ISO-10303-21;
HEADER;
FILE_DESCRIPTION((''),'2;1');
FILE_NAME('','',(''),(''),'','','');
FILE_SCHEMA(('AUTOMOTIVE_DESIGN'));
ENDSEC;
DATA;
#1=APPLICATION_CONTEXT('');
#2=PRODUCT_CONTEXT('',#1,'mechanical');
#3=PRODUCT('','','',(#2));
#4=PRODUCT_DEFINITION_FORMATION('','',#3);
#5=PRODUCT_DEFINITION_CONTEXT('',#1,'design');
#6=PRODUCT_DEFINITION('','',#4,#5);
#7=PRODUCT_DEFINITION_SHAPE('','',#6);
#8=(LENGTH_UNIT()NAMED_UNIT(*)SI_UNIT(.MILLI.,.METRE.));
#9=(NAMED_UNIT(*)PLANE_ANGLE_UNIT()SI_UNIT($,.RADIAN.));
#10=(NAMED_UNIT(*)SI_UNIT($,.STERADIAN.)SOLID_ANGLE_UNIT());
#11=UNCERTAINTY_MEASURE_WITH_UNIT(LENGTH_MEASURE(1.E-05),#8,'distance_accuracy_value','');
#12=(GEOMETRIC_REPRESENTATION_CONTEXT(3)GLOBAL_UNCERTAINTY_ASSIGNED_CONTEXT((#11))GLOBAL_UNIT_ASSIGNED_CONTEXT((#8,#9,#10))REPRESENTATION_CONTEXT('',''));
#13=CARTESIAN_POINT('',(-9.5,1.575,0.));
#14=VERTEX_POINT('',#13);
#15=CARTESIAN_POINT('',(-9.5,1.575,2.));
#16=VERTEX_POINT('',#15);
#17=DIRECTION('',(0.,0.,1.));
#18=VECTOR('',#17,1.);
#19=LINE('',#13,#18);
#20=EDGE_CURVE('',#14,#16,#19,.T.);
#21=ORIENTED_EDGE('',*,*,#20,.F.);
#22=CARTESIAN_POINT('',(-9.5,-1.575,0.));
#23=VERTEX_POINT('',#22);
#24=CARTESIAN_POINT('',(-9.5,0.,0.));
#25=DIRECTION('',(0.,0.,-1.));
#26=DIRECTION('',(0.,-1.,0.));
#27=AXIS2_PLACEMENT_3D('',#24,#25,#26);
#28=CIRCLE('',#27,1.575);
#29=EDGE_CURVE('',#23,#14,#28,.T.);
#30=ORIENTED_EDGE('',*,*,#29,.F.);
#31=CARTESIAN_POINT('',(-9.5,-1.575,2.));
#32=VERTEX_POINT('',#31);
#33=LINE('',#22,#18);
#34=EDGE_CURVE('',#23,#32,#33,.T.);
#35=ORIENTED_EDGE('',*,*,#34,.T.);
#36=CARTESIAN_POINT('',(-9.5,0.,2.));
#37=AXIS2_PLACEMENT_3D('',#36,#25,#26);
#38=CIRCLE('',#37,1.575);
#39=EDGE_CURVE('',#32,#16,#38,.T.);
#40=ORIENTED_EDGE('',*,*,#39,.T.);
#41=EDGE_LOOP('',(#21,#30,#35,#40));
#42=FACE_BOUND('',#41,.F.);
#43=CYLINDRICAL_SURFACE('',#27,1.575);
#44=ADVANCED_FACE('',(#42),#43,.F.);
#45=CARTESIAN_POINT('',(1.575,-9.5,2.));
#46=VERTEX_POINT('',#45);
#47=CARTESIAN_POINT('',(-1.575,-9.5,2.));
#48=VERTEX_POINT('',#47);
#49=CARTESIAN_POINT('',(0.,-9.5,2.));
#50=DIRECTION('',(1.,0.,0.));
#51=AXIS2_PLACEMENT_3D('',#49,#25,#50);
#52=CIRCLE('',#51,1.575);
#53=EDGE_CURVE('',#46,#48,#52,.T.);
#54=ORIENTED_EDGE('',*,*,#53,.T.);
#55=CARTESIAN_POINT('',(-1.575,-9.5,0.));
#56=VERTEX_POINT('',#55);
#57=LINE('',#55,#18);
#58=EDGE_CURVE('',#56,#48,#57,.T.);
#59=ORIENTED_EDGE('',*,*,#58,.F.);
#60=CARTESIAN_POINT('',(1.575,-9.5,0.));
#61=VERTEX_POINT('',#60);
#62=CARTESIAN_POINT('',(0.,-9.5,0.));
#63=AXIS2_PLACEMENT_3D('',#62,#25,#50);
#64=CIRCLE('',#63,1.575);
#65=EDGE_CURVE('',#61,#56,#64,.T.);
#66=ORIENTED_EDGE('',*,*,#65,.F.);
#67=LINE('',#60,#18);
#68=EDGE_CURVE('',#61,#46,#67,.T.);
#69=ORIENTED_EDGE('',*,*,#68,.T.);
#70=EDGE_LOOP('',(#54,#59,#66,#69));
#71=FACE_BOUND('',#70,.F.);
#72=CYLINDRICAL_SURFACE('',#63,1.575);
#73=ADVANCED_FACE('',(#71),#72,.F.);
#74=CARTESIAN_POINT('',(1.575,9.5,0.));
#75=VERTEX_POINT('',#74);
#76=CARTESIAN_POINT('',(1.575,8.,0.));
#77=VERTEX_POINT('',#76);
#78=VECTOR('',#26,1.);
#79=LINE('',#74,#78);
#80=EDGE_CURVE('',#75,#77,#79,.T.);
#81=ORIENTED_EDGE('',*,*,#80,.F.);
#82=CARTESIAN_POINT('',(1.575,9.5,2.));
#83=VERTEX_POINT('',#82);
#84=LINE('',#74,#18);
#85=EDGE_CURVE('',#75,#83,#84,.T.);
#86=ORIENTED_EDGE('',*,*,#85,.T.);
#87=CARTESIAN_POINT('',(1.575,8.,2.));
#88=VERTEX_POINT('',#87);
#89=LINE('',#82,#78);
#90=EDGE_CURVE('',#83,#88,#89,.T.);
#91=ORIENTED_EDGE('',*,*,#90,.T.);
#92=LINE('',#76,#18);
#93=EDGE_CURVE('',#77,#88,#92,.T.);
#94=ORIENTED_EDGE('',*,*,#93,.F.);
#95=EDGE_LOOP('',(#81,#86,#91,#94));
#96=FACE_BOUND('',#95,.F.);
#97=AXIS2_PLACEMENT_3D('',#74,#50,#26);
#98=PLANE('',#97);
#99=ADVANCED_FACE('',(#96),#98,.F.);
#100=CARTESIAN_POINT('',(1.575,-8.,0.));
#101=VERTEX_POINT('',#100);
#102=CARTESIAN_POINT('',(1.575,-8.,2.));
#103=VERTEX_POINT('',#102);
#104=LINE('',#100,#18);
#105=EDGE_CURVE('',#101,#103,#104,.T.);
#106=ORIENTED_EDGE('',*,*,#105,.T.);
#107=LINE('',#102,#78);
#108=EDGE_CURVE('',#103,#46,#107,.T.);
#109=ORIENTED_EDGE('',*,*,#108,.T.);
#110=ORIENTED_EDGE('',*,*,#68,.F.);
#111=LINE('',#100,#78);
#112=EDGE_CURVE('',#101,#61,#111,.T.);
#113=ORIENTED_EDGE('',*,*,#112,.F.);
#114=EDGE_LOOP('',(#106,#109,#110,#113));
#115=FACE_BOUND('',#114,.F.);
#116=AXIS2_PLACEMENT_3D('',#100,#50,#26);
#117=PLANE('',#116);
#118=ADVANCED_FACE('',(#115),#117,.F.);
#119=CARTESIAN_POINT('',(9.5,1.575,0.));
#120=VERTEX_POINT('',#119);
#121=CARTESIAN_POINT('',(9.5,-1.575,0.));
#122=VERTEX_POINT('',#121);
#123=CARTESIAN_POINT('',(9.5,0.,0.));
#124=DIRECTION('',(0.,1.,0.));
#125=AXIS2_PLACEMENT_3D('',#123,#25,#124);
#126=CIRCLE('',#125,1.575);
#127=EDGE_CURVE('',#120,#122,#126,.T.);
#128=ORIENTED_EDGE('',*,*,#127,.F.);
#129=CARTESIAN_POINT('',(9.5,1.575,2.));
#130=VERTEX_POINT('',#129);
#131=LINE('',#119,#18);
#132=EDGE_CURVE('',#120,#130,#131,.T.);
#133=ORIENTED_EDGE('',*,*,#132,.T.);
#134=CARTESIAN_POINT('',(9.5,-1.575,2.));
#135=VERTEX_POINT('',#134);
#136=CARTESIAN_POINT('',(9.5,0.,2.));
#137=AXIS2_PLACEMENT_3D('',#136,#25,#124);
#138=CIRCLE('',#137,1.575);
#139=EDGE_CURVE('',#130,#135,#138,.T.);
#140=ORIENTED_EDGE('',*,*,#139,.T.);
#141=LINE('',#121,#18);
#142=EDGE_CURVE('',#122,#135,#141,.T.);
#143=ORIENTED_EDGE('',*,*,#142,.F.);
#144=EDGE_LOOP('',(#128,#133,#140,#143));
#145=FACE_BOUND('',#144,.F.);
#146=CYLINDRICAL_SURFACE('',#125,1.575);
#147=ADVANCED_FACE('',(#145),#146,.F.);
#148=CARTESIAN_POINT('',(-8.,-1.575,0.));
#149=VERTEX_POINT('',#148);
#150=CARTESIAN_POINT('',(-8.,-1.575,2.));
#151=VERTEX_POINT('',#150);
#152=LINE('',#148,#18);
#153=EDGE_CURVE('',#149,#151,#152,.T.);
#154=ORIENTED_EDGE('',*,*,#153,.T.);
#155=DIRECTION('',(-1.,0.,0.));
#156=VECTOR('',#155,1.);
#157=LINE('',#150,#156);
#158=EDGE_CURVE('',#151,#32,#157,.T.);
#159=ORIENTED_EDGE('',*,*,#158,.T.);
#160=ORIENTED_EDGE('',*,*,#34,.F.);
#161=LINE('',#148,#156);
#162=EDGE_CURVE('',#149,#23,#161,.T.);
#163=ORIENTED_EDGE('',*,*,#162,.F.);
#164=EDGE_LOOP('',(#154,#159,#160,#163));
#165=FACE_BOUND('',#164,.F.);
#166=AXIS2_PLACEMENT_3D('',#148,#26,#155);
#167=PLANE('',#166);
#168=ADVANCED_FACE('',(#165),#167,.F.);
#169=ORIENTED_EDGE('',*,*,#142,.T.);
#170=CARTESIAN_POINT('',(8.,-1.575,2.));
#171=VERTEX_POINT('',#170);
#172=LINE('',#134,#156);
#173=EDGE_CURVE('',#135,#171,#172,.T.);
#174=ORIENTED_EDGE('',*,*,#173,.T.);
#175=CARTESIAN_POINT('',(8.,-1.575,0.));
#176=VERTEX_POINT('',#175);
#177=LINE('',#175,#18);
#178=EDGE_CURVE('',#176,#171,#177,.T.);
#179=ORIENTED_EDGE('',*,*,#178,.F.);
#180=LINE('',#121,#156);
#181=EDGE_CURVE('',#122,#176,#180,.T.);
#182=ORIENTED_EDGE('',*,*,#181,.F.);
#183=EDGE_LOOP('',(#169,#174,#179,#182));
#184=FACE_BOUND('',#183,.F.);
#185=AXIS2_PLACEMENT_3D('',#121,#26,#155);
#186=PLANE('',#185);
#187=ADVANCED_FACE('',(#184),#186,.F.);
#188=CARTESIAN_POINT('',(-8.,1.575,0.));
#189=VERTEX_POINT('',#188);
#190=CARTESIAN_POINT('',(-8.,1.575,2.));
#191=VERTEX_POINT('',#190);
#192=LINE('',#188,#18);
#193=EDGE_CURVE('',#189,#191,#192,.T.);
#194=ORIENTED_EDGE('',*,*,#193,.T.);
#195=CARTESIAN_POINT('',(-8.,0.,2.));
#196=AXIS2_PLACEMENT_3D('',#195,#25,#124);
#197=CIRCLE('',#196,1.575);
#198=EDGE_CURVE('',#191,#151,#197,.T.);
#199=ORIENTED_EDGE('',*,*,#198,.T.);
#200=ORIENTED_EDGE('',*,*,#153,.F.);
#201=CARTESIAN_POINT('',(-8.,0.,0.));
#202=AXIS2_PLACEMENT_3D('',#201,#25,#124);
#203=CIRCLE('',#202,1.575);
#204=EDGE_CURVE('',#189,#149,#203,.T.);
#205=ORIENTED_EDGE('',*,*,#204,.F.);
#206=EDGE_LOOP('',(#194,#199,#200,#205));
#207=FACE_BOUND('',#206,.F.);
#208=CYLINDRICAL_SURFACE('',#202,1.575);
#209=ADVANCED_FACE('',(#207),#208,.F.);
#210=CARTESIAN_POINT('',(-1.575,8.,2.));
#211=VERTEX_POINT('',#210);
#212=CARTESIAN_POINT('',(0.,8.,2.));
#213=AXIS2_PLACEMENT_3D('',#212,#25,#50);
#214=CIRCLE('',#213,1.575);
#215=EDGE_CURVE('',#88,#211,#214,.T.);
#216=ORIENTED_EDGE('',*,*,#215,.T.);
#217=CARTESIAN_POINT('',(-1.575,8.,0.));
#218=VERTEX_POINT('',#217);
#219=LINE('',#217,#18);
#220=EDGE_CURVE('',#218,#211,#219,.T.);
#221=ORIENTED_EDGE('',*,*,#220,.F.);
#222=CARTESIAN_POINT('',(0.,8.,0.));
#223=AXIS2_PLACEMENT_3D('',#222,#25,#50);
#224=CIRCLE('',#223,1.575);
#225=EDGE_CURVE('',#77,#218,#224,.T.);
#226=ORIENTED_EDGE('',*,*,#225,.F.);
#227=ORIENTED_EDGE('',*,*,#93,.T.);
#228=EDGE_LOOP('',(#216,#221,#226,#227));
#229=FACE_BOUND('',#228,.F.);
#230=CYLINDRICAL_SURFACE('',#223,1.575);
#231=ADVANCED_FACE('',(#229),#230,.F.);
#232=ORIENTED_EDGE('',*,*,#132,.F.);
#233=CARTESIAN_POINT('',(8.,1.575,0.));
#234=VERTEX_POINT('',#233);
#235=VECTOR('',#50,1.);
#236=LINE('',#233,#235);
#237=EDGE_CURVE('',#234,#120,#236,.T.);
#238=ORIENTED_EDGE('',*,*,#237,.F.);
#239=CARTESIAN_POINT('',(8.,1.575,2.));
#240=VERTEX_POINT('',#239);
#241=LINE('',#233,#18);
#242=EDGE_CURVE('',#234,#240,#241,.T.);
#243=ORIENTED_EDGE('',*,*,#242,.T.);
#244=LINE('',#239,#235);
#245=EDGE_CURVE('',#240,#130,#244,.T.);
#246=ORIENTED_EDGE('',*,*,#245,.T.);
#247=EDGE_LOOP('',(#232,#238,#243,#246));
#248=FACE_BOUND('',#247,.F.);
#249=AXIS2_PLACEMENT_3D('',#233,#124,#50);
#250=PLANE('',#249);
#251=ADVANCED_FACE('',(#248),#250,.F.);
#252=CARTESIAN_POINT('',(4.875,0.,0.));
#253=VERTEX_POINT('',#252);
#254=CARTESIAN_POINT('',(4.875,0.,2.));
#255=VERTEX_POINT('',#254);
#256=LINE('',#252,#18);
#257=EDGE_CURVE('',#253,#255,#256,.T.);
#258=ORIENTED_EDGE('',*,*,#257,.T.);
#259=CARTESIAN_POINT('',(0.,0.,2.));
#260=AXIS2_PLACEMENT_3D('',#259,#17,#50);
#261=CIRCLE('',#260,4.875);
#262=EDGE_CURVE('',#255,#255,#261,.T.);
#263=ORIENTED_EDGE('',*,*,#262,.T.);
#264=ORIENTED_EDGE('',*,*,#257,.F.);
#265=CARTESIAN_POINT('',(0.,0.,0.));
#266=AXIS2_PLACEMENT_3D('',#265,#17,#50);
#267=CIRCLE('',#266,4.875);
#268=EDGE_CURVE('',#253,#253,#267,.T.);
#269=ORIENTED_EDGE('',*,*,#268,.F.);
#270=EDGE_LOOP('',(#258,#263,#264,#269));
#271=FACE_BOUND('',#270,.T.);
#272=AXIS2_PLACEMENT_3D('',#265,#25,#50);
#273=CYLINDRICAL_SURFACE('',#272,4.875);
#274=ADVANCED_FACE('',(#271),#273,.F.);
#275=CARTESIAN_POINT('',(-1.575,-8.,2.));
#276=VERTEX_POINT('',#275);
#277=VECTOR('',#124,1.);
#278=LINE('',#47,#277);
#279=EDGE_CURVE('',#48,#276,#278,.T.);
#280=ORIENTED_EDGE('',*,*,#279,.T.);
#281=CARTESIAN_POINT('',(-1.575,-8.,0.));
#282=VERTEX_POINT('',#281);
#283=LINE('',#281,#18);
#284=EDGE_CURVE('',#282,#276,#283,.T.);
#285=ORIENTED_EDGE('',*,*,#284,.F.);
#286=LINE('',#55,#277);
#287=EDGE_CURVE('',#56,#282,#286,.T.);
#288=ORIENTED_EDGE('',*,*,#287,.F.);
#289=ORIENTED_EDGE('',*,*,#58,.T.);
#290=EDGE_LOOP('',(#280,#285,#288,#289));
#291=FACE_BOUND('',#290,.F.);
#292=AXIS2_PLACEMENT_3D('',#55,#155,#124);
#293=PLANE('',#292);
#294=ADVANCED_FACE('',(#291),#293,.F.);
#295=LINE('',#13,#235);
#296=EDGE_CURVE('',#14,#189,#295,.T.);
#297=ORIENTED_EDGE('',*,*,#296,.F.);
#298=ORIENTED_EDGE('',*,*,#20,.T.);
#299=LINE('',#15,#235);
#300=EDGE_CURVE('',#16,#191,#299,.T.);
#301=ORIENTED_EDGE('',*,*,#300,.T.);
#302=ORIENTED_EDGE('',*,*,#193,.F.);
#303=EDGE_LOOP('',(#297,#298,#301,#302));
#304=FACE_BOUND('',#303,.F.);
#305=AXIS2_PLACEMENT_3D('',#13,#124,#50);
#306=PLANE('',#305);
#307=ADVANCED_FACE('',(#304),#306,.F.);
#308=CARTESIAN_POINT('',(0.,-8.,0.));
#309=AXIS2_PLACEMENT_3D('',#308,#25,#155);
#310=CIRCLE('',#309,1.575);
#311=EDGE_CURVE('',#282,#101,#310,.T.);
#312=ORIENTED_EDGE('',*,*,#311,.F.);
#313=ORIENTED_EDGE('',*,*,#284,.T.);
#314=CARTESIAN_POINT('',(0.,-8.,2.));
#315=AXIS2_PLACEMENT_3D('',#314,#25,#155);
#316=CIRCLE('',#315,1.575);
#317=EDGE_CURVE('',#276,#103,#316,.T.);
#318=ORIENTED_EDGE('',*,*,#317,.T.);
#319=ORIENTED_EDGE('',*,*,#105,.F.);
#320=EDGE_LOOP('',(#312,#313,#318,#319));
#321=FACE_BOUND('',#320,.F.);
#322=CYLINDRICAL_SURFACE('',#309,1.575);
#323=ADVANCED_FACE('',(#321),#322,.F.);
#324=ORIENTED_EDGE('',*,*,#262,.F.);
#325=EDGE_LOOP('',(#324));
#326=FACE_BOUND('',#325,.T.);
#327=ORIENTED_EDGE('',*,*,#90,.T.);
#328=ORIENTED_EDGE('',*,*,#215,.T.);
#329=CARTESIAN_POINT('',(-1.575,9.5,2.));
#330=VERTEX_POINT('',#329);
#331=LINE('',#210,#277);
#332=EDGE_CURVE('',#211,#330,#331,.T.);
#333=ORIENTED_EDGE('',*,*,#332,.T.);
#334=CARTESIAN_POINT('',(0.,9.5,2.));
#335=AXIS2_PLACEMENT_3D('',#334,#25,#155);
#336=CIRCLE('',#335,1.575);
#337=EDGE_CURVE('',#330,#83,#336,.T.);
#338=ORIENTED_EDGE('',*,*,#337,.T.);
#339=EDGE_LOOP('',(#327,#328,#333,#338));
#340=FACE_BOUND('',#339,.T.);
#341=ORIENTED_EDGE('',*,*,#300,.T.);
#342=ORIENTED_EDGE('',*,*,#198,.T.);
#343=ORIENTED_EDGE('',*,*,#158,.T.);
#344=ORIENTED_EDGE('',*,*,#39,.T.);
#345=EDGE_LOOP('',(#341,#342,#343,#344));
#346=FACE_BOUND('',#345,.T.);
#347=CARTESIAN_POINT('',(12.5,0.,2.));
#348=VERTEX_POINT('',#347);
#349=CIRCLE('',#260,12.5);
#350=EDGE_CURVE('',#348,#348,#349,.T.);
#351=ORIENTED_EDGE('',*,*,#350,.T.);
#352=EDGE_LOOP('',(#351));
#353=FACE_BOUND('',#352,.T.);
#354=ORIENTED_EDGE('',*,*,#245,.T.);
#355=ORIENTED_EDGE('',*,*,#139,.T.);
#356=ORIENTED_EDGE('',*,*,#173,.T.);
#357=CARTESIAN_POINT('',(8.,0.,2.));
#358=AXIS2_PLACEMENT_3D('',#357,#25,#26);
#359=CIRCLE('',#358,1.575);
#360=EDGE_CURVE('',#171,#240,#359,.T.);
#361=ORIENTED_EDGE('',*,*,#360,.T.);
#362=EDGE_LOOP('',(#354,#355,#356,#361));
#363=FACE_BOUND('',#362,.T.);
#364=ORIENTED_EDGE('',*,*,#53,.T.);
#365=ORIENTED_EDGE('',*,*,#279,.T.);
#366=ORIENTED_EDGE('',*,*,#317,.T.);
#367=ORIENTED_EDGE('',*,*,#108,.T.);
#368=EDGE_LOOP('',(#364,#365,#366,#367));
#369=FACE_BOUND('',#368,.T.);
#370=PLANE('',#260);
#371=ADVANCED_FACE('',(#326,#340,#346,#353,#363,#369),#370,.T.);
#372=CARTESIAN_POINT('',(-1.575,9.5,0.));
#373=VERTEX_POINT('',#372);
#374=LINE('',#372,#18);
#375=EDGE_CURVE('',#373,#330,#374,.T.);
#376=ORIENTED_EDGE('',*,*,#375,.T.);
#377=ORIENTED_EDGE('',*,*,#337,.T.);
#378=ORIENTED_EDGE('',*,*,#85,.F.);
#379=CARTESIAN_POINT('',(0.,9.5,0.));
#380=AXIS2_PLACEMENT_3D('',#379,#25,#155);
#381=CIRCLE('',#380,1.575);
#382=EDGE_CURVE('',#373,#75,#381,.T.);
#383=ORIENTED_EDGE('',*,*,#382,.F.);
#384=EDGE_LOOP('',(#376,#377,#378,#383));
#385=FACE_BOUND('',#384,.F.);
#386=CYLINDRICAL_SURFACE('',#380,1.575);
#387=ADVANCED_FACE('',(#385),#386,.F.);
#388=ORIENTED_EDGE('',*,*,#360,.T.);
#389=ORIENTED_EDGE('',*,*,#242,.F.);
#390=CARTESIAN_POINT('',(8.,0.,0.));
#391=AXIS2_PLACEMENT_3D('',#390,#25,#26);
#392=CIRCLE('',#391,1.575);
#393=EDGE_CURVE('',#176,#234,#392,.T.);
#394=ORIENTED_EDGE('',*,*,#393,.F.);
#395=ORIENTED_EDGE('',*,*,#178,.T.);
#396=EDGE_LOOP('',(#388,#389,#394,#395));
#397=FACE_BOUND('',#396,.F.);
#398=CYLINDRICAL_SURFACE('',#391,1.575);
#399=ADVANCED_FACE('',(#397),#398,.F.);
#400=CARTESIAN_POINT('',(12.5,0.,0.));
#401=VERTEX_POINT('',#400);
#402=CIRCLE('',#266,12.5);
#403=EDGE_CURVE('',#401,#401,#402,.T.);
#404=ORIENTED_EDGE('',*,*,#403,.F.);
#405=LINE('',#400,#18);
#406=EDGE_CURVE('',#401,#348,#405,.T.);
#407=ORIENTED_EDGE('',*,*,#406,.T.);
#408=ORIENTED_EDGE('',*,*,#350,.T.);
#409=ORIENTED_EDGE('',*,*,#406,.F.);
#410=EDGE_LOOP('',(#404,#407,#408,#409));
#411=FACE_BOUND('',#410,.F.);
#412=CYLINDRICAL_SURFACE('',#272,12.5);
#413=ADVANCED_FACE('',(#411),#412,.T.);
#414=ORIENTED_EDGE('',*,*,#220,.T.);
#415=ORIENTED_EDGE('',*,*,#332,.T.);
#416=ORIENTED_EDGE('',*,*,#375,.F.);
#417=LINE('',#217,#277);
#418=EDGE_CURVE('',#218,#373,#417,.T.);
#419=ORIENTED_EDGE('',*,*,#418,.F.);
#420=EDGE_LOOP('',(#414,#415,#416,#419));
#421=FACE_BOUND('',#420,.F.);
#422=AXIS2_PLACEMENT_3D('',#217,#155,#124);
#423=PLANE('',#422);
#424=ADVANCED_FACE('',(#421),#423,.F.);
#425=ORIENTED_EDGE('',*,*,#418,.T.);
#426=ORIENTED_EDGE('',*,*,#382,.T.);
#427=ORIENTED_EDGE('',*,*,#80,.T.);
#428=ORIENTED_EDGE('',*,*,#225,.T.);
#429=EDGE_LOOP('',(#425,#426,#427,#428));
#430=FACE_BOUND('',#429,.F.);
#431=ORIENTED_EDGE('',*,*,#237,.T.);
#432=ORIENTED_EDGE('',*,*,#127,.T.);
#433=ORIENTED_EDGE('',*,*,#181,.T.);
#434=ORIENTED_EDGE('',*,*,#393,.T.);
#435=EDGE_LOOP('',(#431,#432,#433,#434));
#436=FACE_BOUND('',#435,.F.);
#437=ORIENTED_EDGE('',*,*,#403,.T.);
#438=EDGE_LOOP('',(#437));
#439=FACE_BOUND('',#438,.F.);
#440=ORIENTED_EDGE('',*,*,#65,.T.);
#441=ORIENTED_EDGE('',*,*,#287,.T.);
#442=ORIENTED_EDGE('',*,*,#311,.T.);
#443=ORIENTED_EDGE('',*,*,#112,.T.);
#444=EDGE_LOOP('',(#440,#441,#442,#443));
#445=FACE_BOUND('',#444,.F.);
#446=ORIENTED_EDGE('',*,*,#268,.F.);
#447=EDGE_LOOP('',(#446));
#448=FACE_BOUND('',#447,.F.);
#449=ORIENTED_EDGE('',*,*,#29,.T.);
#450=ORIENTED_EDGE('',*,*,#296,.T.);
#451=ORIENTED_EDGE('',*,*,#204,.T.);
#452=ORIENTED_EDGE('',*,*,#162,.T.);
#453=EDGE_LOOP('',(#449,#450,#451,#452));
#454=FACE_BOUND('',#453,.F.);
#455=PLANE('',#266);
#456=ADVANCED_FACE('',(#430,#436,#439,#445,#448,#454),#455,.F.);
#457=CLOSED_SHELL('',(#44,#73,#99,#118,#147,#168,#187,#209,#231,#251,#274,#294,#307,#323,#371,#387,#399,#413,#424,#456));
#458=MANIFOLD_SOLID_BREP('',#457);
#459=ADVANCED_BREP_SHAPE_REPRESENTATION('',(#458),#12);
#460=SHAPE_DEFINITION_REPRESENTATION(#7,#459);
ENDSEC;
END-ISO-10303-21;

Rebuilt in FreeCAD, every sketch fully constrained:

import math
import FreeCAD as App
import Part
import Sketcher

V = App.Vector
Q = App.Units.Quantity

doc = App.newDocument("Part")
params = doc.addObject("Spreadsheet::Sheet", "Params")
for row, (alias, value) in enumerate([
    ("sketch1_diameter", "25 mm"),
    ("sketch1_diameter2", "9.75 mm"),
    ("sketch1_width", "1.5 mm"),
    ("pad1_length", "2 mm"),
], start=1):
    params.set(f"A{row}", alias)
    params.set(f"B{row}", "=" + value)
    params.setAlias(f"B{row}", alias)

body = doc.addObject("PartDesign::Body", "Body")

sketch1 = body.newObject("Sketcher::SketchObject", "Sketch")
sketch1.AttachmentSupport = (doc.getObject("XY_Plane"), [""])
sketch1.MapMode = "FlatFace"
sketch1.addGeometry([
    Part.Circle(V(0, 0, 0), V(0, 0, 1), 12.5),
    Part.LineSegment(V(-1.6, -9.5, 0), V(-1.6, -8, 0)),
    Part.ArcOfCircle(Part.Circle(V(0, -8, 0), V(0, 0, 1), 1.6), math.radians(0), math.radians(180)),
    Part.LineSegment(V(1.6, -8, 0), V(1.6, -9.5, 0)),
    Part.ArcOfCircle(Part.Circle(V(0, -9.5, 0), V(0, 0, 1), 1.6), math.radians(180), math.radians(360)),
    Part.LineSegment(V(-8, -1.6, 0), V(-9.5, -1.6, 0)),
    Part.ArcOfCircle(Part.Circle(V(-9.5, 0, 0), V(0, 0, 1), 1.6), math.radians(90), math.radians(270)),
    Part.LineSegment(V(-9.5, 1.6, 0), V(-8, 1.6, 0)),
    Part.ArcOfCircle(Part.Circle(V(-8, 0, 0), V(0, 0, 1), 1.6), math.radians(-90), math.radians(90)),
    Part.Circle(V(0, 0, 0), V(0, 0, 1), 4.9),
    Part.ArcOfCircle(Part.Circle(V(9.5, 0, 0), V(0, 0, 1), 1.6), math.radians(-90), math.radians(90)),
    Part.LineSegment(V(9.5, -1.6, 0), V(8, -1.6, 0)),
    Part.ArcOfCircle(Part.Circle(V(8, 0, 0), V(0, 0, 1), 1.6), math.radians(90), math.radians(270)),
    Part.LineSegment(V(8, 1.6, 0), V(9.5, 1.6, 0)),
    Part.ArcOfCircle(Part.Circle(V(0, 9.5, 0), V(0, 0, 1), 1.6), math.radians(0), math.radians(180)),
    Part.LineSegment(V(1.6, 9.5, 0), V(1.6, 8, 0)),
    Part.ArcOfCircle(Part.Circle(V(0, 8, 0), V(0, 0, 1), 1.6), math.radians(180), math.radians(360)),
    Part.LineSegment(V(-1.6, 8, 0), V(-1.6, 9.5, 0)),
], False)
sketch1.addConstraint([
    Sketcher.Constraint("Tangent", 1, 2, 2, 2),
    Sketcher.Constraint("Tangent", 2, 1, 3, 1),
    Sketcher.Constraint("Tangent", 3, 2, 4, 2),
    Sketcher.Constraint("Tangent", 4, 1, 1, 1),
    Sketcher.Constraint("Tangent", 5, 2, 6, 2),
    Sketcher.Constraint("Tangent", 6, 1, 7, 1),
    Sketcher.Constraint("Tangent", 7, 2, 8, 2),
    Sketcher.Constraint("Tangent", 8, 1, 5, 1),
    Sketcher.Constraint("Tangent", 10, 1, 11, 1),
    Sketcher.Constraint("Tangent", 11, 2, 12, 2),
    Sketcher.Constraint("Tangent", 12, 1, 13, 1),
    Sketcher.Constraint("Tangent", 13, 2, 10, 2),
    Sketcher.Constraint("Tangent", 14, 1, 15, 1),
    Sketcher.Constraint("Tangent", 15, 2, 16, 2),
    Sketcher.Constraint("Tangent", 16, 1, 17, 1),
    Sketcher.Constraint("Tangent", 17, 2, 14, 2),
    Sketcher.Constraint("Vertical", 1),
    Sketcher.Constraint("Vertical", 3),
    Sketcher.Constraint("Horizontal", 5),
    Sketcher.Constraint("Horizontal", 7),
    Sketcher.Constraint("Horizontal", 11),
    Sketcher.Constraint("Horizontal", 13),
    Sketcher.Constraint("Vertical", 15),
    Sketcher.Constraint("Vertical", 17),
    Sketcher.Constraint("Coincident", 0, 3, -1, 1),
    Sketcher.Constraint("Coincident", 9, 3, -1, 1),
    Sketcher.Constraint("Equal", 4, 6),
    Sketcher.Constraint("Equal", 8, 10),
    Sketcher.Constraint("Equal", 12, 14),
    Sketcher.Constraint("Symmetric", 6, 3, 10, 3, -1, 1),
    Sketcher.Constraint("Symmetric", 4, 3, 14, 3, -1, 1),
    Sketcher.Constraint("Symmetric", 8, 3, 12, 3, -2),
    Sketcher.Constraint("Symmetric", 2, 3, 16, 3, -1),
    Sketcher.Constraint("Equal", 13, 1),
    Sketcher.Constraint("Diameter", 0, Q("25 mm")),
    Sketcher.Constraint("Diameter", 9, Q("9.75 mm")),
    Sketcher.Constraint("DistanceX", 5, 2, 5, 1, Q("1.5 mm")),
    Sketcher.Constraint("DistanceY", 2, 3, -1, 1, Q("8 mm")),
    Sketcher.Constraint("DistanceX", 8, 3, -1, 1, Q("8 mm")),
    Sketcher.Constraint("Radius", 2, Q("1.575 mm")),
])
sketch1.setExpression("Constraints[34]", "Params.sketch1_diameter")
sketch1.setExpression("Constraints[35]", "Params.sketch1_diameter2")
sketch1.setExpression("Constraints[36]", "Params.sketch1_width")
pad1 = body.newObject("PartDesign::Pad", "Pad")
pad1.Profile = sketch1
pad1.setExpression("Length", "Params.pad1_length")

doc.recompute()
